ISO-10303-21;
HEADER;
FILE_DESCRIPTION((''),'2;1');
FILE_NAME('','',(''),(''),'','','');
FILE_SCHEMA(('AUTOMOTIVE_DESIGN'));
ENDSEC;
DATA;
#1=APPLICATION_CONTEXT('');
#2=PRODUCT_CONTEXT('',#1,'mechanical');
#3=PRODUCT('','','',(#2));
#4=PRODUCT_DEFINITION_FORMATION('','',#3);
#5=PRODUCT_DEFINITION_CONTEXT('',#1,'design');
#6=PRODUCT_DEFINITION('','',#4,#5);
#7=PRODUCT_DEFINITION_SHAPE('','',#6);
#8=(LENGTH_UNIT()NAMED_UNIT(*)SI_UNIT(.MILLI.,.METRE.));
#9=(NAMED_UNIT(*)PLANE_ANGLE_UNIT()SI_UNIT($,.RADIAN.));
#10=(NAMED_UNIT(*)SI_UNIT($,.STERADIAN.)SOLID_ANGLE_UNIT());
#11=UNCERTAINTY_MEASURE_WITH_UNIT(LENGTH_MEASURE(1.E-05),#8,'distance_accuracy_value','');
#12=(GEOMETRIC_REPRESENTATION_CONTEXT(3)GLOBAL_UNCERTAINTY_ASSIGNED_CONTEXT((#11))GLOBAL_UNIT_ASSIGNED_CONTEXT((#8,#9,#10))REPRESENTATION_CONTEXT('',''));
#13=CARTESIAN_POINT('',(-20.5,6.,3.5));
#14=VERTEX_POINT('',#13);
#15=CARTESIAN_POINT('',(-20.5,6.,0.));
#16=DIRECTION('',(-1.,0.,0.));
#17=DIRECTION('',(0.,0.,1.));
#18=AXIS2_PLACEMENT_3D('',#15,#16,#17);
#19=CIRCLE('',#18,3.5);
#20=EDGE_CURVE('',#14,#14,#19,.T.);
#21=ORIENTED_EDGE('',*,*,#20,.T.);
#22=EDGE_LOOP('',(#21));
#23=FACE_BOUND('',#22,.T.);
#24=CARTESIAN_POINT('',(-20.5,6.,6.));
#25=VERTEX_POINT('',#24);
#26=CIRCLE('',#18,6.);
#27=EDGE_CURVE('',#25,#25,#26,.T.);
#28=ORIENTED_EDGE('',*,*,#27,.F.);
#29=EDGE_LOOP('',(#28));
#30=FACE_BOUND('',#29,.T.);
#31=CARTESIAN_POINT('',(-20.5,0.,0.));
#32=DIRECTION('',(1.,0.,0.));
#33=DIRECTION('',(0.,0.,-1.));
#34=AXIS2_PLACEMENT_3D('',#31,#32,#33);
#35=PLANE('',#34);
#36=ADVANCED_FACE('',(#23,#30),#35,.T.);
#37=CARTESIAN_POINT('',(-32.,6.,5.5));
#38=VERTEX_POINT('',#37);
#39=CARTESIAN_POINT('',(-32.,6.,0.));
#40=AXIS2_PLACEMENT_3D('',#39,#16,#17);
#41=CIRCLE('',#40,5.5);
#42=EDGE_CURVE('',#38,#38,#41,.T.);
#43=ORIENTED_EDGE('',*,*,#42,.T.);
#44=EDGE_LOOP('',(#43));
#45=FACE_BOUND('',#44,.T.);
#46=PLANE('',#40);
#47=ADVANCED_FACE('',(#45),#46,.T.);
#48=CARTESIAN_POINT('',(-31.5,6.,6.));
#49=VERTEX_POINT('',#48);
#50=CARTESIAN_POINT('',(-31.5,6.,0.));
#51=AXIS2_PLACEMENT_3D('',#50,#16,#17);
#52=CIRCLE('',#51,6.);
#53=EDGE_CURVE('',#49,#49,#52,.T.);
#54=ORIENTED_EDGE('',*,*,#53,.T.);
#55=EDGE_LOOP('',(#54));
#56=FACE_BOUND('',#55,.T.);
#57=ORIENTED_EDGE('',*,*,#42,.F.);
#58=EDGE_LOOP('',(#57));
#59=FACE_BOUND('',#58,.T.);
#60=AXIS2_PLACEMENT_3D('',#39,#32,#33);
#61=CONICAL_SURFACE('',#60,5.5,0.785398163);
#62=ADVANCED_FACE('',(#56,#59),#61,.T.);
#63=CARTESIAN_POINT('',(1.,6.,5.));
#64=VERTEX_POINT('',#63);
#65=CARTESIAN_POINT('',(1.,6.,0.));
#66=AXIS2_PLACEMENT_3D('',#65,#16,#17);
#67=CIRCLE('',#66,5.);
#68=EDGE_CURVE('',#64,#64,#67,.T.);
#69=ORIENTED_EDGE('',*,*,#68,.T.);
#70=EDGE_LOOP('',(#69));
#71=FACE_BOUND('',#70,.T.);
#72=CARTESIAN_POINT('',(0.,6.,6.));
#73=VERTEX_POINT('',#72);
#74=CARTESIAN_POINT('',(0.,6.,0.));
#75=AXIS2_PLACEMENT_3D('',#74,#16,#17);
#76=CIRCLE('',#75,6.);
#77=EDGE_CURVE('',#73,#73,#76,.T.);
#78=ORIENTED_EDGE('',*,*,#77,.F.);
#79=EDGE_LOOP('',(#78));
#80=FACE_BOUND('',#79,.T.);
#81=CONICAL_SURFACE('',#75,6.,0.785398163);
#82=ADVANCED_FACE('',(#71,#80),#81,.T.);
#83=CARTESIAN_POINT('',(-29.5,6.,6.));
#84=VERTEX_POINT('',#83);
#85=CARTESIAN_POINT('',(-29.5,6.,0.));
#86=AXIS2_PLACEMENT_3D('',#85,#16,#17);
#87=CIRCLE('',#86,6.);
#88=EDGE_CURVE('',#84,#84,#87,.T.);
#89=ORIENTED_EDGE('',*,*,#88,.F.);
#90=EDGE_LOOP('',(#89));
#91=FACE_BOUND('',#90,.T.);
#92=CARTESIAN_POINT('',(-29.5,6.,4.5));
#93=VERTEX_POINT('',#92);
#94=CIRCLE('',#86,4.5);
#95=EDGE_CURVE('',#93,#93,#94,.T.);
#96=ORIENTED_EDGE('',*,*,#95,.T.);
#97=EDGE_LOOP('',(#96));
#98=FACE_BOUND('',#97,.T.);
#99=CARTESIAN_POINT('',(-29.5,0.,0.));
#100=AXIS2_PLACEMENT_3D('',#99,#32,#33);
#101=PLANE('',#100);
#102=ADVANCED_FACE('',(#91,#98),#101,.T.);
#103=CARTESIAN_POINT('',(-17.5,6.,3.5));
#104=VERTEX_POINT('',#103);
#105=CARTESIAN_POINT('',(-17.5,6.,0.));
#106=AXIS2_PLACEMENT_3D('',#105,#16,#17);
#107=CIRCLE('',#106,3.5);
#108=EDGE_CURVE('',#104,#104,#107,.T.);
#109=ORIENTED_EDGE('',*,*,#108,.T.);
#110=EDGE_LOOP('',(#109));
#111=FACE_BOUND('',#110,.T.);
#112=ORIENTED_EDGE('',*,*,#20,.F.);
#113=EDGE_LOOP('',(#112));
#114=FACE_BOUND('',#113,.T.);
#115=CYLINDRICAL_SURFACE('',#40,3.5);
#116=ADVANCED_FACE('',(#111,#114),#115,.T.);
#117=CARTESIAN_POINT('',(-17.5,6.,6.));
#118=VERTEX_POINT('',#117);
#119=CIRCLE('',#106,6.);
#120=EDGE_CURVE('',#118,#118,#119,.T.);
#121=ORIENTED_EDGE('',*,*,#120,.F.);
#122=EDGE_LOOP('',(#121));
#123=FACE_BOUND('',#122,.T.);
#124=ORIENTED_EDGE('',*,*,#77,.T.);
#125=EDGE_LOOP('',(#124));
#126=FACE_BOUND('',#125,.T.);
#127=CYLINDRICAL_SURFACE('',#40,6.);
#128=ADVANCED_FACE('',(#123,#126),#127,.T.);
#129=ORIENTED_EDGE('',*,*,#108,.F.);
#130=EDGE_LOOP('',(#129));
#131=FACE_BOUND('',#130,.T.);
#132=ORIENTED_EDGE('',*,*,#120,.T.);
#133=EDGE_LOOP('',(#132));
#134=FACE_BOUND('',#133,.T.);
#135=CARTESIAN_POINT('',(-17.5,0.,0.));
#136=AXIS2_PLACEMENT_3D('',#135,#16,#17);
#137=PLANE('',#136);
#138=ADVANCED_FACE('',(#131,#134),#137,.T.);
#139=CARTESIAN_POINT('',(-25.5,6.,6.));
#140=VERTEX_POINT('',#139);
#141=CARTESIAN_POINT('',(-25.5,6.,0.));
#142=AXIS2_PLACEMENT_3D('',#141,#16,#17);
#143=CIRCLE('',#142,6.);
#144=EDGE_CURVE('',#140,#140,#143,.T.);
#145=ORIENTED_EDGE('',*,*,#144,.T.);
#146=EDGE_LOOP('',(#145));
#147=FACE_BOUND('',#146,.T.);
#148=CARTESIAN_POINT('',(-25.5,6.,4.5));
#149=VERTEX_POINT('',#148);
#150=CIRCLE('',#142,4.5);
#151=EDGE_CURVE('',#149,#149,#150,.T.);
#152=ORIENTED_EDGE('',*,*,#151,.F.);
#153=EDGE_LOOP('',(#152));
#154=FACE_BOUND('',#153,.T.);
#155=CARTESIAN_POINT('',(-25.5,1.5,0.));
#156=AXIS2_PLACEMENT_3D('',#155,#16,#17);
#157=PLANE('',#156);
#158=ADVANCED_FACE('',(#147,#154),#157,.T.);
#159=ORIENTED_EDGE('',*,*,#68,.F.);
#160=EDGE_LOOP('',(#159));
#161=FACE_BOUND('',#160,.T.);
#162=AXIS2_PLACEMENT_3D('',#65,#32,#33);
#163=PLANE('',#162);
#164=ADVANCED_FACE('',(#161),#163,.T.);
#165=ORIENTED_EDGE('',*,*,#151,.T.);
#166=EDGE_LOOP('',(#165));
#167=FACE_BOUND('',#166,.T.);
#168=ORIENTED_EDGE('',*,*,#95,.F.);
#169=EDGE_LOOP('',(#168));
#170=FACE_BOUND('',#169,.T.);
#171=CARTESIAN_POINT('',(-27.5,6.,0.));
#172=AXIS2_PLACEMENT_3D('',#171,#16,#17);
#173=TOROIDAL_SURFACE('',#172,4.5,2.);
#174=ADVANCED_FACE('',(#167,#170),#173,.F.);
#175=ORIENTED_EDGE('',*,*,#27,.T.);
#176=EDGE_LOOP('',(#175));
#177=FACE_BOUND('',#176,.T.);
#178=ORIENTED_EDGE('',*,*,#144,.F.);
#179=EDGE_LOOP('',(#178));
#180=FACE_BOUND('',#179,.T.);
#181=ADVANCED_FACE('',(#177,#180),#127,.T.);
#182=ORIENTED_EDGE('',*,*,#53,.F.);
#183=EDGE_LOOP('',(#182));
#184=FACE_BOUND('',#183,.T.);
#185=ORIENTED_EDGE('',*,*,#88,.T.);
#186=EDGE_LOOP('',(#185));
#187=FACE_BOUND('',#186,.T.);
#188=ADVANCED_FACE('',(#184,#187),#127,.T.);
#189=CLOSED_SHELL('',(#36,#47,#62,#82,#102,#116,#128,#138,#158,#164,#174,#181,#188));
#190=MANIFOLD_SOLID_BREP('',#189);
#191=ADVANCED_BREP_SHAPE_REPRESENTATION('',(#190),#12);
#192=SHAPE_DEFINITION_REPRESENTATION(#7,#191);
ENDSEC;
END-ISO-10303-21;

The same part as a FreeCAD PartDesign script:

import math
import FreeCAD as App
import Part
import Sketcher

V = App.Vector
Q = App.Units.Quantity

doc = App.newDocument("Part")
body = doc.addObject("PartDesign::Body", "Body")

# Sketch on XY plane
sketch1 = doc.addObject("Sketcher::SketchObject", "Sketch")
body.addObject(sketch1)
sketch1.AttachmentSupport = (doc.XY_Plane, [""])
sketch1.MapMode = "FlatFace"
sketch1.addGeometry(Part.LineSegment(V(-17.5, 0, 0), V(0, 0, 0)), False)
sketch1.addGeometry(Part.LineSegment(V(0, 0, 0), V(1, 1, 0)), False)
sketch1.addGeometry(Part.LineSegment(V(1, 1, 0), V(1, 6, 0)), False)
sketch1.addGeometry(Part.LineSegment(V(1, 6, 0), V(-32, 6, 0)), False)
sketch1.addGeometry(Part.LineSegment(V(-32, 6, 0), V(-32, 0.5, 0)), False)
sketch1.addGeometry(Part.LineSegment(V(-32, 0.5, 0), V(-31.5, 0, 0)), False)
sketch1.addGeometry(Part.LineSegment(V(-31.5, 0, 0), V(-29.5, 0, 0)), False)
sketch1.addGeometry(Part.LineSegment(V(-29.5, 0, 0), V(-29.5, 1.5, 0)), False)
sketch1.addGeometry(Part.ArcOfCircle(Part.Circle(V(-27.5, 1.5, 0), V(0, 0, 1), 2), math.radians(0), math.radians(180)), False)
sketch1.addGeometry(Part.LineSegment(V(-25.5, 1.5, 0), V(-25.5, 0, 0)), False)
sketch1.addGeometry(Part.LineSegment(V(-25.5, 0, 0), V(-20.5, 0, 0)), False)
sketch1.addGeometry(Part.LineSegment(V(-20.5, 0, 0), V(-20.5, 2.5, 0)), False)
sketch1.addGeometry(Part.LineSegment(V(-20.5, 2.5, 0), V(-17.5, 2.5, 0)), False)
sketch1.addGeometry(Part.LineSegment(V(-17.5, 2.5, 0), V(-17.5, 0, 0)), False)
sketch1.addGeometry(Part.LineSegment(V(-32, 6, 0), V(1, 6, 0)), True)  # axis
sketch1.addConstraint(Sketcher.Constraint("Coincident", 0, 2, 1, 1))
sketch1.addConstraint(Sketcher.Constraint("Coincident", 1, 2, 2, 1))
sketch1.addConstraint(Sketcher.Constraint("Coincident", 2, 2, 3, 1))
sketch1.addConstraint(Sketcher.Constraint("Coincident", 3, 2, 4, 1))
sketch1.addConstraint(Sketcher.Constraint("Coincident", 4, 2, 5, 1))
sketch1.addConstraint(Sketcher.Constraint("Coincident", 5, 2, 6, 1))
sketch1.addConstraint(Sketcher.Constraint("Coincident", 6, 2, 7, 1))
sketch1.addConstraint(Sketcher.Constraint("Tangent", 7, 2, 8, 2))
sketch1.addConstraint(Sketcher.Constraint("Tangent", 8, 1, 9, 1))
sketch1.addConstraint(Sketcher.Constraint("Coincident", 9, 2, 10, 1))
sketch1.addConstraint(Sketcher.Constraint("Coincident", 10, 2, 11, 1))
sketch1.addConstraint(Sketcher.Constraint("Coincident", 11, 2, 12, 1))
sketch1.addConstraint(Sketcher.Constraint("Coincident", 12, 2, 13, 1))
sketch1.addConstraint(Sketcher.Constraint("Coincident", 13, 2, 0, 1))
sketch1.addConstraint(Sketcher.Constraint("Horizontal", 0))
sketch1.addConstraint(Sketcher.Constraint("Vertical", 2))
sketch1.addConstraint(Sketcher.Constraint("Horizontal", 3))
sketch1.addConstraint(Sketcher.Constraint("Vertical", 4))
sketch1.addConstraint(Sketcher.Constraint("Horizontal", 6))
sketch1.addConstraint(Sketcher.Constraint("Vertical", 7))
sketch1.addConstraint(Sketcher.Constraint("Vertical", 9))
sketch1.addConstraint(Sketcher.Constraint("Horizontal", 10))
sketch1.addConstraint(Sketcher.Constraint("Vertical", 11))
sketch1.addConstraint(Sketcher.Constraint("Horizontal", 12))
sketch1.addConstraint(Sketcher.Constraint("Vertical", 13))
sketch1.addConstraint(Sketcher.Constraint("Horizontal", 14))
sketch1.addConstraint(Sketcher.Constraint("Coincident", 0, 2, -1, 1))
sketch1.addConstraint(Sketcher.Constraint("Coincident", 14, 1, 3, 2))
sketch1.addConstraint(Sketcher.Constraint("PointOnObject", 5, 2, -1))
sketch1.addConstraint(Sketcher.Constraint("PointOnObject", 9, 2, -1))
sketch1.addConstraint(Sketcher.Constraint("Perpendicular", 1, 5))
sketch1.addConstraint(Sketcher.Constraint("Vertical", 1, 2, 14, 2))
sketch1.addConstraint(Sketcher.Constraint("Equal", 10, 2))
sketch1.addConstraint(Sketcher.Constraint("Radius", 8, 2.0))
sketch1.addConstraint(Sketcher.Constraint("DistanceX", 3, 2, 3, 1, 33.0))
sketch1.addConstraint(Sketcher.Constraint("DistanceX", 6, 1, 6, 2, 2.0))
sketch1.addConstraint(Sketcher.Constraint("DistanceX", 10, 1, 10, 2, 5.0))
sketch1.addConstraint(Sketcher.Constraint("DistanceX", 12, 1, 12, 2, 3.0))
sketch1.addConstraint(Sketcher.Constraint("Angle", 1, Q("45 deg")))
sketch1.addConstraint(Sketcher.Constraint("DistanceX", 0, 1, 0, 2, 17.5))
sketch1.addConstraint(Sketcher.Constraint("DistanceY", 4, 2, 4, 1, 5.5))
sketch1.addConstraint(Sketcher.Constraint("DistanceY", 7, 1, 7, 2, 1.5))
sketch1.addConstraint(Sketcher.Constraint("DistanceY", 11, 1, 11, 2, 2.5))
revolution = doc.addObject("PartDesign::Revolution", "Revolution")
body.addObject(revolution)
revolution.Profile = sketch1
revolution.ReferenceAxis = (sketch1, ["Axis0"])
revolution.Angle = 360

doc.recompute()
